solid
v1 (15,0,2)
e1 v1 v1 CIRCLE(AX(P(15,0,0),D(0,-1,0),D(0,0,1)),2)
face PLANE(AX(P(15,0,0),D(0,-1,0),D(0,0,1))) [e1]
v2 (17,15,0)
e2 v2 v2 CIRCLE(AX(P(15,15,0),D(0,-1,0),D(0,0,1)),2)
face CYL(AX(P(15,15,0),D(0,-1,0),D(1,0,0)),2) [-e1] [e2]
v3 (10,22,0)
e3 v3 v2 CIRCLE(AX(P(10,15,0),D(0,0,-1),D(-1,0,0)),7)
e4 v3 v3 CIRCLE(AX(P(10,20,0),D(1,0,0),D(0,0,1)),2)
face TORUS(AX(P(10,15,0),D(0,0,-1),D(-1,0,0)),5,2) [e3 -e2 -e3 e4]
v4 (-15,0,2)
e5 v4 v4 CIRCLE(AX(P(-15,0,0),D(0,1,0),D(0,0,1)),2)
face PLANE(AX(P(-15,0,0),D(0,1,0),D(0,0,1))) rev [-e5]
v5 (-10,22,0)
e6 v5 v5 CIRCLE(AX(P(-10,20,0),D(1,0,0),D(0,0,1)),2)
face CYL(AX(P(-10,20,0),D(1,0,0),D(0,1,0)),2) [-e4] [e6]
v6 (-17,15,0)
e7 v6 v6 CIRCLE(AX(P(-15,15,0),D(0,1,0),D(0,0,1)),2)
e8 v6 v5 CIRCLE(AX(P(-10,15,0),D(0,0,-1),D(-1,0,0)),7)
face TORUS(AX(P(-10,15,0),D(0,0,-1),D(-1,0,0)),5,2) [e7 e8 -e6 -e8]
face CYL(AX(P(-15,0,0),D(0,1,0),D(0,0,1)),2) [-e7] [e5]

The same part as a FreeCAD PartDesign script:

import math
import FreeCAD as App
import Part
import Sketcher
Q = App.Units.Quantity

doc = App.newDocument("Part")
body = doc.addObject("PartDesign::Body", "Body")

# Sketch on XZ plane
sketch1 = body.newObject("Sketcher::SketchObject", "Sketch")
sketch1.AttachmentSupport = (doc.getObject("XZ_Plane"), [""])
sketch1.MapMode = "FlatFace"
sketch1.addGeometry(Part.Circle(App.Vector(-15, 0, 0), App.Vector(0, 0, 1), 2), False)
sketch1.addConstraint([
    Sketcher.Constraint("PointOnObject", 0, 3, -1),
    Sketcher.Constraint("Diameter", 0, Q("4 mm")),
    Sketcher.Constraint("DistanceX", 0, 3, -1, 1, Q("15 mm")),
])

# Sketch on XY plane
sketch2 = body.newObject("Sketcher::SketchObject", "Sketch001")
sketch2.AttachmentSupport = (doc.getObject("XY_Plane"), [""])
sketch2.MapMode = "FlatFace"
sketch2.addGeometry([
    Part.LineSegment(App.Vector(-15, 0, 0), App.Vector(-15, 15, 0)),  # 0
    Part.ArcOfCircle(Part.Circle(App.Vector(-10, 15, 0), App.Vector(0, 0, 1), 5), math.radians(90), math.radians(180)),  # 1
    Part.LineSegment(App.Vector(-10, 20, 0), App.Vector(10, 20, 0)),  # 2
    Part.ArcOfCircle(Part.Circle(App.Vector(10, 15, 0), App.Vector(0, 0, 1), 5), math.radians(0), math.radians(90)),  # 3
    Part.LineSegment(App.Vector(15, 15, 0), App.Vector(15, 0, 0)),  # 4
], False)
sketch2.addConstraint([
    Sketcher.Constraint("Tangent", 0, 2, 1, 2),
    Sketcher.Constraint("Tangent", 1, 1, 2, 1),
    Sketcher.Constraint("Tangent", 2, 2, 3, 2),
    Sketcher.Constraint("Tangent", 3, 1, 4, 1),
    Sketcher.Constraint("Vertical", 0),
    Sketcher.Constraint("Horizontal", 2),
    Sketcher.Constraint("Vertical", 4),
    Sketcher.Constraint("Equal", 1, 3),
    Sketcher.Constraint("Symmetric", 0, 1, 4, 2, -1, 1),
    Sketcher.Constraint("PointOnObject", 0, 1, -1),
    Sketcher.Constraint("Radius", 1, Q("5 mm")),
    Sketcher.Constraint("DistanceX", 2, 1, 2, 2, Q("20 mm")),
    Sketcher.Constraint("DistanceY", 0, 1, 0, 2, Q("15 mm")),
])
doc.recompute()

additivepipe = body.newObject("PartDesign::AdditivePipe", "AdditivePipe")
additivepipe.Profile = sketch1
additivepipe.Spine = (sketch2, ["Edge1", "Edge2", "Edge3", "Edge4", "Edge5"])

doc.recompute()
